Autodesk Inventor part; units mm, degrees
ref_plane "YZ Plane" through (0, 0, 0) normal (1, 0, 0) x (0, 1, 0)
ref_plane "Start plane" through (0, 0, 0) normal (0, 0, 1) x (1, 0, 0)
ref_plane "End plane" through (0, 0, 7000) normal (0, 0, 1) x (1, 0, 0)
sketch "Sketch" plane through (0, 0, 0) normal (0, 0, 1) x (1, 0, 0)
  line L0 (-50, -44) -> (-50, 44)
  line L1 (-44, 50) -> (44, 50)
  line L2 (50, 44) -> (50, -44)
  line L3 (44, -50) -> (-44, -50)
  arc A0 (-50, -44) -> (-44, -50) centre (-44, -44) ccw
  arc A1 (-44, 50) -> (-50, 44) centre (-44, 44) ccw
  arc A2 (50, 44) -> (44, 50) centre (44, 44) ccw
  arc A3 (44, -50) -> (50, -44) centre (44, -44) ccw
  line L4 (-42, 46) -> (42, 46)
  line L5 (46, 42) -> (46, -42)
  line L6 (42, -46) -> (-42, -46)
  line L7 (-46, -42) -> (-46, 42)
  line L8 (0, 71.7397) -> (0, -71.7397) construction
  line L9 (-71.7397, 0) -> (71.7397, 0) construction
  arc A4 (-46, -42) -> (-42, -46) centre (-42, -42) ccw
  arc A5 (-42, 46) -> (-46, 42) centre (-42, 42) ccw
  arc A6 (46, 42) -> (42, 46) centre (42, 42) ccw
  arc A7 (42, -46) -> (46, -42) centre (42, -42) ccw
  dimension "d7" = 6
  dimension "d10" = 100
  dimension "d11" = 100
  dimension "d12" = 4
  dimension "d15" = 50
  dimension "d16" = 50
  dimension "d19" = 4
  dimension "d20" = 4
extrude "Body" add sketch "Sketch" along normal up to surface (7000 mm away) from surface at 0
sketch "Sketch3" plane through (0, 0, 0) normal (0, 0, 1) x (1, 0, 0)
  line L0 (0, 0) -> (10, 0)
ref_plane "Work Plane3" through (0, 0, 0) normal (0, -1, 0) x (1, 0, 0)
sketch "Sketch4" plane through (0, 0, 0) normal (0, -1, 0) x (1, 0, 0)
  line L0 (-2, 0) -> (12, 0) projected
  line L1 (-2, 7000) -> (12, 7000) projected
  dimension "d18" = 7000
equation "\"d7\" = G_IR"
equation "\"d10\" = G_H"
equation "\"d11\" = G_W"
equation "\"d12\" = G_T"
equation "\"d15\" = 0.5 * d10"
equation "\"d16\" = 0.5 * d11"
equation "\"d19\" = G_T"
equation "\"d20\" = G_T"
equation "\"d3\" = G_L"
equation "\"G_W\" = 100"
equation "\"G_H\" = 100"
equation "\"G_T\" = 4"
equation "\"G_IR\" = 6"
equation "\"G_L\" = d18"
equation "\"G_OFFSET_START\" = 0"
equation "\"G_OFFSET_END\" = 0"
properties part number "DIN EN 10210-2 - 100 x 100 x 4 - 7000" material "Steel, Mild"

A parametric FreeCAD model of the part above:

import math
import FreeCAD as App
import Part
import Sketcher

V = App.Vector
Q = App.Units.Quantity

doc = App.newDocument("Part")
params = doc.addObject("Spreadsheet::Sheet", "Params")
for row, (alias, value) in enumerate([
    ("sketch1_radius", "6 mm"),
    ("sketch1_radius2", "4 mm"),
    ("pad1_length", "7000 mm"),
], start=1):
    params.set(f"A{row}", alias)
    params.set(f"B{row}", "=" + value)
    params.setAlias(f"B{row}", alias)

body = doc.addObject("PartDesign::Body", "Body")

sketch1 = body.newObject("Sketcher::SketchObject", "Sketch")
sketch1.AttachmentSupport = (doc.getObject("XY_Plane"), [""])
sketch1.MapMode = "FlatFace"
sketch1.addGeometry(Part.LineSegment(V(-50, 44, 0), V(-50, -44, 0)), False)
sketch1.addGeometry(Part.ArcOfCircle(Part.Circle(V(-44, -44, 0), V(0, 0, 1), 6), math.radians(180), math.radians(270)), False)
sketch1.addGeometry(Part.LineSegment(V(-44, -50, 0), V(44, -50, 0)), False)
sketch1.addGeometry(Part.ArcOfCircle(Part.Circle(V(44, -44, 0), V(0, 0, 1), 6), math.radians(-90), math.radians(0)), False)
sketch1.addGeometry(Part.LineSegment(V(50, -44, 0), V(50, 44, 0)), False)
sketch1.addGeometry(Part.ArcOfCircle(Part.Circle(V(44, 44, 0), V(0, 0, 1), 6), math.radians(0), math.radians(90)), False)
sketch1.addGeometry(Part.LineSegment(V(44, 50, 0), V(-44, 50, 0)), False)
sketch1.addGeometry(Part.ArcOfCircle(Part.Circle(V(-44, 44, 0), V(0, 0, 1), 6), math.radians(90), math.radians(180)), False)
sketch1.addGeometry(Part.ArcOfCircle(Part.Circle(V(-42, 42, 0), V(0, 0, 1), 4), math.radians(90), math.radians(180)), False)
sketch1.addGeometry(Part.LineSegment(V(-42, 46, 0), V(42, 46, 0)), False)
sketch1.addGeometry(Part.ArcOfCircle(Part.Circle(V(42, 42, 0), V(0, 0, 1), 4), math.radians(0), math.radians(90)), False)
sketch1.addGeometry(Part.LineSegment(V(46, 42, 0), V(46, -42, 0)), False)
sketch1.addGeometry(Part.ArcOfCircle(Part.Circle(V(42, -42, 0), V(0, 0, 1), 4), math.radians(-90), math.radians(0)), False)
sketch1.addGeometry(Part.LineSegment(V(42, -46, 0), V(-42, -46, 0)), False)
sketch1.addGeometry(Part.ArcOfCircle(Part.Circle(V(-42, -42, 0), V(0, 0, 1), 4), math.radians(180), math.radians(270)), False)
sketch1.addGeometry(Part.LineSegment(V(-46, -42, 0), V(-46, 42, 0)), False)
sketch1.addConstraint(Sketcher.Constraint("Tangent", 0, 2, 1, 1))
sketch1.addConstraint(Sketcher.Constraint("Tangent", 1, 2, 2, 1))
sketch1.addConstraint(Sketcher.Constraint("Tangent", 2, 2, 3, 1))
sketch1.addConstraint(Sketcher.Constraint("Tangent", 3, 2, 4, 1))
sketch1.addConstraint(Sketcher.Constraint("Tangent", 4, 2, 5, 1))
sketch1.addConstraint(Sketcher.Constraint("Tangent", 5, 2, 6, 1))
sketch1.addConstraint(Sketcher.Constraint("Tangent", 6, 2, 7, 1))
sketch1.addConstraint(Sketcher.Constraint("Tangent", 7, 2, 0, 1))
sketch1.addConstraint(Sketcher.Constraint("Tangent", 8, 1, 9, 1))
sketch1.addConstraint(Sketcher.Constraint("Tangent", 9, 2, 10, 2))
sketch1.addConstraint(Sketcher.Constraint("Tangent", 10, 1, 11, 1))
sketch1.addConstraint(Sketcher.Constraint("Tangent", 11, 2, 12, 2))
sketch1.addConstraint(Sketcher.Constraint("Tangent", 12, 1, 13, 1))
sketch1.addConstraint(Sketcher.Constraint("Tangent", 13, 2, 14, 2))
sketch1.addConstraint(Sketcher.Constraint("Tangent", 14, 1, 15, 1))
sketch1.addConstraint(Sketcher.Constraint("Tangent", 15, 2, 8, 2))
sketch1.addConstraint(Sketcher.Constraint("Vertical", 0))
sketch1.addConstraint(Sketcher.Constraint("Horizontal", 2))
sketch1.addConstraint(Sketcher.Constraint("Vertical", 4))
sketch1.addConstraint(Sketcher.Constraint("Horizontal", 6))
sketch1.addConstraint(Sketcher.Constraint("Horizontal", 9))
sketch1.addConstraint(Sketcher.Constraint("Vertical", 11))
sketch1.addConstraint(Sketcher.Constraint("Horizontal", 13))
sketch1.addConstraint(Sketcher.Constraint("Vertical", 15))
sketch1.addConstraint(Sketcher.Constraint("Equal", 1, 3))
sketch1.addConstraint(Sketcher.Constraint("Equal", 3, 5))
sketch1.addConstraint(Sketcher.Constraint("Equal", 5, 7))
sketch1.addConstraint(Sketcher.Constraint("Equal", 8, 10))
sketch1.addConstraint(Sketcher.Constraint("Equal", 10, 12))
sketch1.addConstraint(Sketcher.Constraint("Equal", 12, 14))
sketch1.addConstraint(Sketcher.Constraint("Symmetric", 1, 3, 5, 3, -1, 1))
sketch1.addConstraint(Sketcher.Constraint("Symmetric", 8, 3, 12, 3, -1, 1))
sketch1.addConstraint(Sketcher.Constraint("Equal", 6, 0))
sketch1.addConstraint(Sketcher.Constraint("Equal", 13, 11))
sketch1.addConstraint(Sketcher.Constraint("Radius", 1, Q("6 mm")))
sketch1.addConstraint(Sketcher.Constraint("Radius", 8, Q("4 mm")))
sketch1.addConstraint(Sketcher.Constraint("DistanceX", 0, 2, -1, 1, Q("50 mm")))
sketch1.addConstraint(Sketcher.Constraint("DistanceY", 8, 1, 6, 2, Q("4 mm")))
sketch1.setExpression("Constraints[34]", "Params.sketch1_radius")
sketch1.setExpression("Constraints[35]", "Params.sketch1_radius2")
pad1 = body.newObject("PartDesign::Pad", "Pad")
pad1.Profile = sketch1
pad1.setExpression("Length", "Params.pad1_length")

doc.recompute()
